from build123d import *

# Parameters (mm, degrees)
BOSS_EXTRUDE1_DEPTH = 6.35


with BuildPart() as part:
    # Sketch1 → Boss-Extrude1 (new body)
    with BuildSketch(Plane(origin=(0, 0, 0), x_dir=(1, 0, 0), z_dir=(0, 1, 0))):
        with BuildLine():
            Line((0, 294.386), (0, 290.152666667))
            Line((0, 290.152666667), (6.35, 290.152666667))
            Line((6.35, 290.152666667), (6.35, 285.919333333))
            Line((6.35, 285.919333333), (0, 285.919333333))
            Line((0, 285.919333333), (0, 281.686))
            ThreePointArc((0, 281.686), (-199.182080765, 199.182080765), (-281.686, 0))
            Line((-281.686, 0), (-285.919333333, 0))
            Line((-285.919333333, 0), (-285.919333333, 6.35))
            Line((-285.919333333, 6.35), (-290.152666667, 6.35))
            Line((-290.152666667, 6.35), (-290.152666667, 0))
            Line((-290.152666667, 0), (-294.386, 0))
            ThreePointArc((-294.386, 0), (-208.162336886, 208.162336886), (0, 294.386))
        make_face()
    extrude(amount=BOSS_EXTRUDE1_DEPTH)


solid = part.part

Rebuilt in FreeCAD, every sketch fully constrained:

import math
import FreeCAD as App
import Part
import Sketcher
Q = App.Units.Quantity

doc = App.newDocument("Part")
body = doc.addObject("PartDesign::Body", "Body")

sketch1 = body.newObject("Sketcher::SketchObject", "Sketch")
sketch1.AttachmentSupport = (doc.getObject("XZ_Plane"), [""])
sketch1.MapMode = "FlatFace"
sketch1.addGeometry(Part.LineSegment(App.Vector(0, -290.2, 0), App.Vector(0, -294.4, 0)), False)
sketch1.addGeometry(Part.ArcOfCircle(Part.Circle(App.Vector(0, 0, 0), App.Vector(0, 0, 1), 294.4), math.radians(-180), math.radians(-90)), False)
sketch1.addGeometry(Part.LineSegment(App.Vector(-294.4, 0, 0), App.Vector(-290.2, 0, 0)), False)
sketch1.addGeometry(Part.LineSegment(App.Vector(-290.2, 0, 0), App.Vector(-290.2, -6.3, 0)), False)
sketch1.addGeometry(Part.LineSegment(App.Vector(-290.2, -6.3, 0), App.Vector(-285.9, -6.3, 0)), False)
sketch1.addGeometry(Part.LineSegment(App.Vector(-285.9, -6.3, 0), App.Vector(-285.9, 0, 0)), False)
sketch1.addGeometry(Part.LineSegment(App.Vector(-285.9, 0, 0), App.Vector(-281.7, 0, 0)), False)
sketch1.addGeometry(Part.ArcOfCircle(Part.Circle(App.Vector(0, 0, 0), App.Vector(0, 0, 1), 281.7), math.radians(-180), math.radians(-90)), False)
sketch1.addGeometry(Part.LineSegment(App.Vector(0, -281.7, 0), App.Vector(0, -285.9, 0)), False)
sketch1.addGeometry(Part.LineSegment(App.Vector(0, -285.9, 0), App.Vector(6.3, -285.9, 0)), False)
sketch1.addGeometry(Part.LineSegment(App.Vector(6.3, -285.9, 0), App.Vector(6.3, -290.2, 0)), False)
sketch1.addGeometry(Part.LineSegment(App.Vector(6.3, -290.2, 0), App.Vector(0, -290.2, 0)), False)
sketch1.addConstraint(Sketcher.Constraint("Coincident", 0, 2, 1, 2))
sketch1.addConstraint(Sketcher.Constraint("Coincident", 1, 1, 2, 1))
sketch1.addConstraint(Sketcher.Constraint("Coincident", 2, 2, 3, 1))
sketch1.addConstraint(Sketcher.Constraint("Coincident", 3, 2, 4, 1))
sketch1.addConstraint(Sketcher.Constraint("Coincident", 4, 2, 5, 1))
sketch1.addConstraint(Sketcher.Constraint("Coincident", 5, 2, 6, 1))
sketch1.addConstraint(Sketcher.Constraint("Coincident", 6, 2, 7, 1))
sketch1.addConstraint(Sketcher.Constraint("Coincident", 7, 2, 8, 1))
sketch1.addConstraint(Sketcher.Constraint("Coincident", 8, 2, 9, 1))
sketch1.addConstraint(Sketcher.Constraint("Coincident", 9, 2, 10, 1))
sketch1.addConstraint(Sketcher.Constraint("Coincident", 10, 2, 11, 1))
sketch1.addConstraint(Sketcher.Constraint("Coincident", 11, 2, 0, 1))
sketch1.addConstraint(Sketcher.Constraint("Vertical", 0))
sketch1.addConstraint(Sketcher.Constraint("Horizontal", 2))
sketch1.addConstraint(Sketcher.Constraint("Vertical", 3))
sketch1.addConstraint(Sketcher.Constraint("Horizontal", 4))
sketch1.addConstraint(Sketcher.Constraint("Vertical", 5))
sketch1.addConstraint(Sketcher.Constraint("Horizontal", 6))
sketch1.addConstraint(Sketcher.Constraint("Vertical", 8))
sketch1.addConstraint(Sketcher.Constraint("Horizontal", 9))
sketch1.addConstraint(Sketcher.Constraint("Vertical", 10))
sketch1.addConstraint(Sketcher.Constraint("Horizontal", 11))
sketch1.addConstraint(Sketcher.Constraint("Coincident", 1, 3, -1, 1))
sketch1.addConstraint(Sketcher.Constraint("Coincident", 7, 3, -1, 1))
sketch1.addConstraint(Sketcher.Constraint("PointOnObject", 0, 2, -2))
sketch1.addConstraint(Sketcher.Constraint("PointOnObject", 2, 2, -1))
sketch1.addConstraint(Sketcher.Constraint("PointOnObject", 5, 2, -1))
sketch1.addConstraint(Sketcher.Constraint("PointOnObject", 7, 2, -2))
sketch1.addConstraint(Sketcher.Constraint("Equal", 2, 4))
sketch1.addConstraint(Sketcher.Constraint("Equal", 4, 6))
sketch1.addConstraint(Sketcher.Constraint("Equal", 6, 0))
sketch1.addConstraint(Sketcher.Constraint("Equal", 11, 3))
sketch1.addConstraint(Sketcher.Constraint("Equal", 0, 8))
sketch1.addConstraint(Sketcher.Constraint("Radius", 1, Q("11.59 in")))
sketch1.addConstraint(Sketcher.Constraint("Radius", 7, Q("11.09 in")))
sketch1.addConstraint(Sketcher.Constraint("DistanceX", 9, 1, 9, 2, Q("0.25 in")))
pad1 = body.newObject("PartDesign::Pad", "Pad")
pad1.Profile = sketch1
pad1.Length = Q("0.25 in")
pad1.Reversed = True

doc.recompute()
